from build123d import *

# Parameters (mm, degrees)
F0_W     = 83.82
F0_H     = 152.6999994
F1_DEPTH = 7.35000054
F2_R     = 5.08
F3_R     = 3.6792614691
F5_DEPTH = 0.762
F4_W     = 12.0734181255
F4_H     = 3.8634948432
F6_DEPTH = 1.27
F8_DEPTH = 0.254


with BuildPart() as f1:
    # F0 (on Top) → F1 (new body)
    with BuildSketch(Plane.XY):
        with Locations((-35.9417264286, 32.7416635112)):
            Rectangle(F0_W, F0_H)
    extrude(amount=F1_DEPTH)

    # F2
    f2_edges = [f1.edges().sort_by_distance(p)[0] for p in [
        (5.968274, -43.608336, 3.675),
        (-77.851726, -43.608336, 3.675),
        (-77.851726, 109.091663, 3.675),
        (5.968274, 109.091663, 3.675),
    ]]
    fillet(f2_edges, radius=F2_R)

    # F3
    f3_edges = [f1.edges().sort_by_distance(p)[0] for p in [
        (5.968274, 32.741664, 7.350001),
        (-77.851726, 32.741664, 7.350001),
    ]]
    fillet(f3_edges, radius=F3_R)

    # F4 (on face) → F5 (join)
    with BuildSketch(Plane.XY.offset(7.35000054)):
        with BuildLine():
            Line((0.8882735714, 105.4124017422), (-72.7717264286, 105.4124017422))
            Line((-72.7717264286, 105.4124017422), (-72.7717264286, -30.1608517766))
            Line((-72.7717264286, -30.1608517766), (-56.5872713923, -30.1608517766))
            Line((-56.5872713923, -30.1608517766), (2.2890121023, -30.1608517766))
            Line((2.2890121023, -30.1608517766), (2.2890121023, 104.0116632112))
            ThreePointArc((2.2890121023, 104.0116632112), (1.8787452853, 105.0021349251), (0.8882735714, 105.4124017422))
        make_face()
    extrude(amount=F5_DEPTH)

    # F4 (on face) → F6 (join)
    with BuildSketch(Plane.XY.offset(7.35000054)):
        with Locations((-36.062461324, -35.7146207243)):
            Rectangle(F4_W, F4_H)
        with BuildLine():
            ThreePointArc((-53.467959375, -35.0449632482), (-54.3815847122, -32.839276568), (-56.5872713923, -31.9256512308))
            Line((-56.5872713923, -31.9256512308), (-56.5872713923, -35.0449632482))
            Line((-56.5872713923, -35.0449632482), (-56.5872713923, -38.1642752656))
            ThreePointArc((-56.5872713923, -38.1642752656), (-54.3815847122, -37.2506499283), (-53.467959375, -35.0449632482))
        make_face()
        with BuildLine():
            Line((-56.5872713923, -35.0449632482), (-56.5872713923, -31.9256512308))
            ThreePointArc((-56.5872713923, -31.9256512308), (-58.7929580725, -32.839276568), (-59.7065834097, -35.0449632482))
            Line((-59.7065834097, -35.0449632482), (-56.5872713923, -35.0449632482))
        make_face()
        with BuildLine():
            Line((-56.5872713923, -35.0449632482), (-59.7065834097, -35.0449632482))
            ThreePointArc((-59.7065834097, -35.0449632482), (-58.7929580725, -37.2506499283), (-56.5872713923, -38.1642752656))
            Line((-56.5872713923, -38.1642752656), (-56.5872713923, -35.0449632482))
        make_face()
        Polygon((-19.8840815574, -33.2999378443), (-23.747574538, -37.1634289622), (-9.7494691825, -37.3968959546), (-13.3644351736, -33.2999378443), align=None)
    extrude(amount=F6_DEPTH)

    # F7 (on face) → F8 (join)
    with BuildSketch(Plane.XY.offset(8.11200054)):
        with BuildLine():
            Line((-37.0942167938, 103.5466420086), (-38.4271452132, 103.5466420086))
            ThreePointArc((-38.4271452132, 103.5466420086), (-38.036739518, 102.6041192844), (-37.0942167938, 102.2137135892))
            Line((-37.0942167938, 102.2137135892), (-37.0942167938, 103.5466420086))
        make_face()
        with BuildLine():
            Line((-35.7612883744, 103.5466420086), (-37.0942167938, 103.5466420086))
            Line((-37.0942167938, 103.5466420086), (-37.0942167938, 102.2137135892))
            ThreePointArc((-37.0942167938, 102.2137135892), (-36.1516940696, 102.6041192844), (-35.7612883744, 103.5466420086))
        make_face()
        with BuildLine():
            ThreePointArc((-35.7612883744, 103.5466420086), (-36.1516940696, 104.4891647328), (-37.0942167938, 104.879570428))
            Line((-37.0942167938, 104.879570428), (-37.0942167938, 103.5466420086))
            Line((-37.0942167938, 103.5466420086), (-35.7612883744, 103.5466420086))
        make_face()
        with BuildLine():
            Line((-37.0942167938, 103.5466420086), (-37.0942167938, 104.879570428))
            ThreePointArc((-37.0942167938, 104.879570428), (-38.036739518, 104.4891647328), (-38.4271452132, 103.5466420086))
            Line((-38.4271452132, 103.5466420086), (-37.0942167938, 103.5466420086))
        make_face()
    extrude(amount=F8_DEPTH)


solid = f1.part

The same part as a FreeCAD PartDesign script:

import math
import FreeCAD as App
import Part
import Sketcher

V = App.Vector
Q = App.Units.Quantity


def edges_at(feature, points):
    """Names of the edges that pass closest to the given points."""
    edges = feature.Shape.Edges
    near = lambda p: min(range(len(edges)), key=lambda i: edges[i].distToShape(Part.Vertex(*p))[0])
    return sorted({f"Edge{near(p) + 1}" for p in points})

doc = App.newDocument("Part")
body = doc.addObject("PartDesign::Body", "Body")

sketch1 = body.newObject("Sketcher::SketchObject", "Sketch")
sketch1.AttachmentSupport = (doc.getObject("XY_Plane"), [""])
sketch1.MapMode = "FlatFace"
sketch1.addGeometry(Part.LineSegment(V(-78, 109, 0), V(-78, -44, 0)), False)
sketch1.addGeometry(Part.LineSegment(V(-78, -44, 0), V(6, -44, 0)), False)
sketch1.addGeometry(Part.LineSegment(V(6, -44, 0), V(6, 109, 0)), False)
sketch1.addGeometry(Part.LineSegment(V(6, 109, 0), V(-78, 109, 0)), False)
sketch1.addConstraint(Sketcher.Constraint("Coincident", 0, 2, 1, 1))
sketch1.addConstraint(Sketcher.Constraint("Coincident", 1, 2, 2, 1))
sketch1.addConstraint(Sketcher.Constraint("Coincident", 2, 2, 3, 1))
sketch1.addConstraint(Sketcher.Constraint("Coincident", 3, 2, 0, 1))
sketch1.addConstraint(Sketcher.Constraint("Vertical", 0))
sketch1.addConstraint(Sketcher.Constraint("Horizontal", 1))
sketch1.addConstraint(Sketcher.Constraint("Vertical", 2))
sketch1.addConstraint(Sketcher.Constraint("Horizontal", 3))
sketch1.addConstraint(Sketcher.Constraint("DistanceX", 1, 1, 1, 2, Q("3.3 in")))
sketch1.addConstraint(Sketcher.Constraint("DistanceY", 0, 2, 0, 1, Q("152.699999 mm")))
sketch1.addConstraint(Sketcher.Constraint("DistanceX", 0, 2, -1, 1, Q("77.851726 mm")))
sketch1.addConstraint(Sketcher.Constraint("DistanceY", 0, 2, -1, 1, Q("43.608336 mm")))
pad1 = body.newObject("PartDesign::Pad", "Pad")
pad1.Profile = sketch1
pad1.Length = 7.350001
doc.recompute()

fillet = body.newObject("PartDesign::Fillet", "Fillet")
fillet.Base = (pad1, edges_at(pad1, [
    (5.968, -43.608, 3.675),
    (-77.852, -43.608, 3.675),
    (-77.852, 109.092, 3.675),
    (5.968, 109.092, 3.675),
]))
fillet.Radius = Q("0.2 in")
doc.recompute()

fillet2 = body.newObject("PartDesign::Fillet", "Fillet001")
fillet2.Base = (fillet, edges_at(fillet, [(5.968, 32.742, 7.35), (-77.852, 32.742, 7.35)]))
fillet2.Radius = 3.679261

sketch2 = body.newObject("Sketcher::SketchObject", "Sketch001")
sketch2.AttachmentSupport = (doc.getObject("XY_Plane"), [""])
sketch2.MapMode = "FlatFace"
sketch2.AttachmentOffset = App.Placement(V(0, 0, 7.350001), App.Rotation())
sketch2.addGeometry(Part.LineSegment(V(0.9, 105.4, 0), V(-72.8, 105.4, 0)), False)
sketch2.addGeometry(Part.LineSegment(V(-72.8, 105.4, 0), V(-72.8, -30.2, 0)), False)
sketch2.addGeometry(Part.LineSegment(V(-72.8, -30.2, 0), V(2.3, -30.2, 0)), False)
sketch2.addGeometry(Part.LineSegment(V(2.3, -30.2, 0), V(2.3, 104, 0)), False)
sketch2.addGeometry(Part.ArcOfCircle(Part.Circle(V(0.9, 104, 0), V(0, 0, 1), 1.4), math.radians(0), math.radians(90)), False)
sketch2.addConstraint(Sketcher.Constraint("Coincident", 0, 2, 1, 1))
sketch2.addConstraint(Sketcher.Constraint("Coincident", 1, 2, 2, 1))
sketch2.addConstraint(Sketcher.Constraint("Coincident", 2, 2, 3, 1))
sketch2.addConstraint(Sketcher.Constraint("Tangent", 3, 2, 4, 1))
sketch2.addConstraint(Sketcher.Constraint("Tangent", 4, 2, 0, 1))
sketch2.addConstraint(Sketcher.Constraint("Horizontal", 0))
sketch2.addConstraint(Sketcher.Constraint("Vertical", 1))
sketch2.addConstraint(Sketcher.Constraint("Horizontal", 2))
sketch2.addConstraint(Sketcher.Constraint("Vertical", 3))
sketch2.addConstraint(Sketcher.Constraint("DistanceX", 0, 2, 0, 1, Q("2.9 in")))
sketch2.addConstraint(Sketcher.Constraint("Radius", 4, Q("1.400739 mm")))
sketch2.addConstraint(Sketcher.Constraint("DistanceY", -1, 1, 0, 2, Q("105.412402 mm")))
sketch2.addConstraint(Sketcher.Constraint("DistanceY", 1, 2, 1, 1, Q("135.573254 mm")))
sketch2.addConstraint(Sketcher.Constraint("DistanceX", -1, 1, 4, 3, Q("0.888274 mm")))
pad2 = body.newObject("PartDesign::Pad", "Pad001")
pad2.Profile = sketch2
pad2.Length = Q("0.03 in")

sketch3 = body.newObject("Sketcher::SketchObject", "Sketch002")
sketch3.AttachmentSupport = (doc.getObject("XY_Plane"), [""])
sketch3.MapMode = "FlatFace"
sketch3.AttachmentOffset = App.Placement(V(0, 0, 7.350001), App.Rotation())
sketch3.addGeometry(Part.LineSegment(V(-42.1, -33.8, 0), V(-42.1, -37.6, 0)), False)
sketch3.addGeometry(Part.LineSegment(V(-42.1, -37.6, 0), V(-30, -37.6, 0)), False)
sketch3.addGeometry(Part.LineSegment(V(-30, -37.6, 0), V(-30, -33.8, 0)), False)
sketch3.addGeometry(Part.LineSegment(V(-30, -33.8, 0), V(-42.1, -33.8, 0)), False)
sketch3.addGeometry(Part.ArcOfCircle(Part.Circle(V(-56.6, -35, 0), V(0, 0, 1), 3.1), math.radians(0), math.radians(90)), False)
sketch3.addGeometry(Part.ArcOfCircle(Part.Circle(V(-56.6, -35, 0), V(0, 0, 1), 3.1), math.radians(90), math.radians(180)), False)
sketch3.addGeometry(Part.ArcOfCircle(Part.Circle(V(-56.6, -35, 0), V(0, 0, 1), 3.1), math.radians(180), math.radians(270)), False)
sketch3.addGeometry(Part.ArcOfCircle(Part.Circle(V(-56.6, -35, 0), V(0, 0, 1), 3.1), math.radians(-90), math.radians(0)), False)
sketch3.addGeometry(Part.LineSegment(V(-19.9, -33.3, 0), V(-23.7, -37.2, 0)), False)
sketch3.addGeometry(Part.LineSegment(V(-23.7, -37.2, 0), V(-9.7, -37.4, 0)), False)
sketch3.addGeometry(Part.LineSegment(V(-9.7, -37.4, 0), V(-13.4, -33.3, 0)), False)
sketch3.addGeometry(Part.LineSegment(V(-13.4, -33.3, 0), V(-19.9, -33.3, 0)), False)
sketch3.addConstraint(Sketcher.Constraint("Coincident", 0, 2, 1, 1))
sketch3.addConstraint(Sketcher.Constraint("Coincident", 1, 2, 2, 1))
sketch3.addConstraint(Sketcher.Constraint("Coincident", 2, 2, 3, 1))
sketch3.addConstraint(Sketcher.Constraint("Coincident", 3, 2, 0, 1))
sketch3.addConstraint(Sketcher.Constraint("Tangent", 4, 2, 5, 1))
sketch3.addConstraint(Sketcher.Constraint("Tangent", 5, 2, 6, 1))
sketch3.addConstraint(Sketcher.Constraint("Tangent", 6, 2, 7, 1))
sketch3.addConstraint(Sketcher.Constraint("Tangent", 7, 2, 4, 1))
sketch3.addConstraint(Sketcher.Constraint("Coincident", 8, 2, 9, 1))
sketch3.addConstraint(Sketcher.Constraint("Coincident", 9, 2, 10, 1))
sketch3.addConstraint(Sketcher.Constraint("Coincident", 10, 2, 11, 1))
sketch3.addConstraint(Sketcher.Constraint("Coincident", 11, 2, 8, 1))
sketch3.addConstraint(Sketcher.Constraint("Vertical", 0))
sketch3.addConstraint(Sketcher.Constraint("Horizontal", 1))
sketch3.addConstraint(Sketcher.Constraint("Vertical", 2))
sketch3.addConstraint(Sketcher.Constraint("Horizontal", 3))
sketch3.addConstraint(Sketcher.Constraint("Horizontal", 11))
sketch3.addConstraint(Sketcher.Constraint("Equal", 4, 5))
sketch3.addConstraint(Sketcher.Constraint("Horizontal", 7, 3, 5, 2))
sketch3.addConstraint(Sketcher.Constraint("Horizontal", 5, 2, 7, 2))
sketch3.addConstraint(Sketcher.Constraint("Vertical", 7, 3, 4, 2))
sketch3.addConstraint(Sketcher.Constraint("Vertical", 4, 2, 6, 2))
sketch3.addConstraint(Sketcher.Constraint("Angle", 8, Q("-135.000014 deg")))
sketch3.addConstraint(Sketcher.Constraint("Radius", 4, Q("3.119312 mm")))
sketch3.addConstraint(Sketcher.Constraint("DistanceX", 1, 1, 1, 2, Q("12.073418 mm")))
sketch3.addConstraint(Sketcher.Constraint("DistanceX", 4, 3, 0, 2, Q("14.488101 mm")))
sketch3.addConstraint(Sketcher.Constraint("DistanceX", 0, 2, 9, 2, Q("32.349701 mm")))
sketch3.addConstraint(Sketcher.Constraint("DistanceX", 11, 2, 11, 1, Q("6.519646 mm")))
sketch3.addConstraint(Sketcher.Constraint("DistanceY", 0, 2, 0, 1, Q("3.863495 mm")))
sketch3.addConstraint(Sketcher.Constraint("DistanceX", 4, 3, -1, 1, Q("56.587271 mm")))
sketch3.addConstraint(Sketcher.Constraint("DistanceY", 0, 2, -1, 1, Q("37.646368 mm")))
sketch3.addConstraint(Sketcher.Constraint("DistanceY", 4, 2, -1, 1, Q("31.925651 mm")))
sketch3.addConstraint(Sketcher.Constraint("DistanceY", 8, 2, -1, 1, Q("37.163429 mm")))
sketch3.addConstraint(Sketcher.Constraint("DistanceX", 11, 2, -1, 1, Q("19.884082 mm")))
sketch3.addConstraint(Sketcher.Constraint("DistanceY", 9, 2, 10, 2, Q("4.096958 mm")))
sketch3.addConstraint(Sketcher.Constraint("DistanceX", 8, 2, 10, 2, Q("10.383139 mm")))
pad3 = body.newObject("PartDesign::Pad", "Pad002")
pad3.Profile = sketch3
pad3.Length = Q("0.05 in")

sketch4 = body.newObject("Sketcher::SketchObject", "Sketch003")
sketch4.AttachmentSupport = (doc.getObject("XY_Plane"), [""])
sketch4.MapMode = "FlatFace"
sketch4.AttachmentOffset = App.Placement(V(0, 0, 8.112001), App.Rotation())
sketch4.addGeometry(Part.ArcOfCircle(Part.Circle(V(-37.1, 103.5, 0), V(0, 0, 1), 1.3), math.radians(180), math.radians(270)), False)
sketch4.addGeometry(Part.ArcOfCircle(Part.Circle(V(-37.1, 103.5, 0), V(0, 0, 1), 1.3), math.radians(-90), math.radians(0)), False)
sketch4.addGeometry(Part.ArcOfCircle(Part.Circle(V(-37.1, 103.5, 0), V(0, 0, 1), 1.3), math.radians(0), math.radians(90)), False)
sketch4.addGeometry(Part.ArcOfCircle(Part.Circle(V(-37.1, 103.5, 0), V(0, 0, 1), 1.3), math.radians(90), math.radians(180)), False)
sketch4.addConstraint(Sketcher.Constraint("Tangent", 0, 2, 1, 1))
sketch4.addConstraint(Sketcher.Constraint("Tangent", 1, 2, 2, 1))
sketch4.addConstraint(Sketcher.Constraint("Tangent", 2, 2, 3, 1))
sketch4.addConstraint(Sketcher.Constraint("Tangent", 3, 2, 0, 1))
sketch4.addConstraint(Sketcher.Constraint("Equal", 0, 1))
sketch4.addConstraint(Sketcher.Constraint("Horizontal", 3, 3, 1, 2))
sketch4.addConstraint(Sketcher.Constraint("Horizontal", 1, 2, 3, 2))
sketch4.addConstraint(Sketcher.Constraint("Vertical", 3, 3, 0, 2))
sketch4.addConstraint(Sketcher.Constraint("Vertical", 0, 2, 2, 2))
sketch4.addConstraint(Sketcher.Constraint("Radius", 0, Q("1.332928 mm")))
sketch4.addConstraint(Sketcher.Constraint("DistanceX", 1, 2, -1, 1, Q("35.761288 mm")))
sketch4.addConstraint(Sketcher.Constraint("DistanceY", -1, 1, 2, 2, Q("104.87957 mm")))
pad4 = body.newObject("PartDesign::Pad", "Pad003")
pad4.Profile = sketch4
pad4.Length = Q("0.01 in")

doc.recompute()
